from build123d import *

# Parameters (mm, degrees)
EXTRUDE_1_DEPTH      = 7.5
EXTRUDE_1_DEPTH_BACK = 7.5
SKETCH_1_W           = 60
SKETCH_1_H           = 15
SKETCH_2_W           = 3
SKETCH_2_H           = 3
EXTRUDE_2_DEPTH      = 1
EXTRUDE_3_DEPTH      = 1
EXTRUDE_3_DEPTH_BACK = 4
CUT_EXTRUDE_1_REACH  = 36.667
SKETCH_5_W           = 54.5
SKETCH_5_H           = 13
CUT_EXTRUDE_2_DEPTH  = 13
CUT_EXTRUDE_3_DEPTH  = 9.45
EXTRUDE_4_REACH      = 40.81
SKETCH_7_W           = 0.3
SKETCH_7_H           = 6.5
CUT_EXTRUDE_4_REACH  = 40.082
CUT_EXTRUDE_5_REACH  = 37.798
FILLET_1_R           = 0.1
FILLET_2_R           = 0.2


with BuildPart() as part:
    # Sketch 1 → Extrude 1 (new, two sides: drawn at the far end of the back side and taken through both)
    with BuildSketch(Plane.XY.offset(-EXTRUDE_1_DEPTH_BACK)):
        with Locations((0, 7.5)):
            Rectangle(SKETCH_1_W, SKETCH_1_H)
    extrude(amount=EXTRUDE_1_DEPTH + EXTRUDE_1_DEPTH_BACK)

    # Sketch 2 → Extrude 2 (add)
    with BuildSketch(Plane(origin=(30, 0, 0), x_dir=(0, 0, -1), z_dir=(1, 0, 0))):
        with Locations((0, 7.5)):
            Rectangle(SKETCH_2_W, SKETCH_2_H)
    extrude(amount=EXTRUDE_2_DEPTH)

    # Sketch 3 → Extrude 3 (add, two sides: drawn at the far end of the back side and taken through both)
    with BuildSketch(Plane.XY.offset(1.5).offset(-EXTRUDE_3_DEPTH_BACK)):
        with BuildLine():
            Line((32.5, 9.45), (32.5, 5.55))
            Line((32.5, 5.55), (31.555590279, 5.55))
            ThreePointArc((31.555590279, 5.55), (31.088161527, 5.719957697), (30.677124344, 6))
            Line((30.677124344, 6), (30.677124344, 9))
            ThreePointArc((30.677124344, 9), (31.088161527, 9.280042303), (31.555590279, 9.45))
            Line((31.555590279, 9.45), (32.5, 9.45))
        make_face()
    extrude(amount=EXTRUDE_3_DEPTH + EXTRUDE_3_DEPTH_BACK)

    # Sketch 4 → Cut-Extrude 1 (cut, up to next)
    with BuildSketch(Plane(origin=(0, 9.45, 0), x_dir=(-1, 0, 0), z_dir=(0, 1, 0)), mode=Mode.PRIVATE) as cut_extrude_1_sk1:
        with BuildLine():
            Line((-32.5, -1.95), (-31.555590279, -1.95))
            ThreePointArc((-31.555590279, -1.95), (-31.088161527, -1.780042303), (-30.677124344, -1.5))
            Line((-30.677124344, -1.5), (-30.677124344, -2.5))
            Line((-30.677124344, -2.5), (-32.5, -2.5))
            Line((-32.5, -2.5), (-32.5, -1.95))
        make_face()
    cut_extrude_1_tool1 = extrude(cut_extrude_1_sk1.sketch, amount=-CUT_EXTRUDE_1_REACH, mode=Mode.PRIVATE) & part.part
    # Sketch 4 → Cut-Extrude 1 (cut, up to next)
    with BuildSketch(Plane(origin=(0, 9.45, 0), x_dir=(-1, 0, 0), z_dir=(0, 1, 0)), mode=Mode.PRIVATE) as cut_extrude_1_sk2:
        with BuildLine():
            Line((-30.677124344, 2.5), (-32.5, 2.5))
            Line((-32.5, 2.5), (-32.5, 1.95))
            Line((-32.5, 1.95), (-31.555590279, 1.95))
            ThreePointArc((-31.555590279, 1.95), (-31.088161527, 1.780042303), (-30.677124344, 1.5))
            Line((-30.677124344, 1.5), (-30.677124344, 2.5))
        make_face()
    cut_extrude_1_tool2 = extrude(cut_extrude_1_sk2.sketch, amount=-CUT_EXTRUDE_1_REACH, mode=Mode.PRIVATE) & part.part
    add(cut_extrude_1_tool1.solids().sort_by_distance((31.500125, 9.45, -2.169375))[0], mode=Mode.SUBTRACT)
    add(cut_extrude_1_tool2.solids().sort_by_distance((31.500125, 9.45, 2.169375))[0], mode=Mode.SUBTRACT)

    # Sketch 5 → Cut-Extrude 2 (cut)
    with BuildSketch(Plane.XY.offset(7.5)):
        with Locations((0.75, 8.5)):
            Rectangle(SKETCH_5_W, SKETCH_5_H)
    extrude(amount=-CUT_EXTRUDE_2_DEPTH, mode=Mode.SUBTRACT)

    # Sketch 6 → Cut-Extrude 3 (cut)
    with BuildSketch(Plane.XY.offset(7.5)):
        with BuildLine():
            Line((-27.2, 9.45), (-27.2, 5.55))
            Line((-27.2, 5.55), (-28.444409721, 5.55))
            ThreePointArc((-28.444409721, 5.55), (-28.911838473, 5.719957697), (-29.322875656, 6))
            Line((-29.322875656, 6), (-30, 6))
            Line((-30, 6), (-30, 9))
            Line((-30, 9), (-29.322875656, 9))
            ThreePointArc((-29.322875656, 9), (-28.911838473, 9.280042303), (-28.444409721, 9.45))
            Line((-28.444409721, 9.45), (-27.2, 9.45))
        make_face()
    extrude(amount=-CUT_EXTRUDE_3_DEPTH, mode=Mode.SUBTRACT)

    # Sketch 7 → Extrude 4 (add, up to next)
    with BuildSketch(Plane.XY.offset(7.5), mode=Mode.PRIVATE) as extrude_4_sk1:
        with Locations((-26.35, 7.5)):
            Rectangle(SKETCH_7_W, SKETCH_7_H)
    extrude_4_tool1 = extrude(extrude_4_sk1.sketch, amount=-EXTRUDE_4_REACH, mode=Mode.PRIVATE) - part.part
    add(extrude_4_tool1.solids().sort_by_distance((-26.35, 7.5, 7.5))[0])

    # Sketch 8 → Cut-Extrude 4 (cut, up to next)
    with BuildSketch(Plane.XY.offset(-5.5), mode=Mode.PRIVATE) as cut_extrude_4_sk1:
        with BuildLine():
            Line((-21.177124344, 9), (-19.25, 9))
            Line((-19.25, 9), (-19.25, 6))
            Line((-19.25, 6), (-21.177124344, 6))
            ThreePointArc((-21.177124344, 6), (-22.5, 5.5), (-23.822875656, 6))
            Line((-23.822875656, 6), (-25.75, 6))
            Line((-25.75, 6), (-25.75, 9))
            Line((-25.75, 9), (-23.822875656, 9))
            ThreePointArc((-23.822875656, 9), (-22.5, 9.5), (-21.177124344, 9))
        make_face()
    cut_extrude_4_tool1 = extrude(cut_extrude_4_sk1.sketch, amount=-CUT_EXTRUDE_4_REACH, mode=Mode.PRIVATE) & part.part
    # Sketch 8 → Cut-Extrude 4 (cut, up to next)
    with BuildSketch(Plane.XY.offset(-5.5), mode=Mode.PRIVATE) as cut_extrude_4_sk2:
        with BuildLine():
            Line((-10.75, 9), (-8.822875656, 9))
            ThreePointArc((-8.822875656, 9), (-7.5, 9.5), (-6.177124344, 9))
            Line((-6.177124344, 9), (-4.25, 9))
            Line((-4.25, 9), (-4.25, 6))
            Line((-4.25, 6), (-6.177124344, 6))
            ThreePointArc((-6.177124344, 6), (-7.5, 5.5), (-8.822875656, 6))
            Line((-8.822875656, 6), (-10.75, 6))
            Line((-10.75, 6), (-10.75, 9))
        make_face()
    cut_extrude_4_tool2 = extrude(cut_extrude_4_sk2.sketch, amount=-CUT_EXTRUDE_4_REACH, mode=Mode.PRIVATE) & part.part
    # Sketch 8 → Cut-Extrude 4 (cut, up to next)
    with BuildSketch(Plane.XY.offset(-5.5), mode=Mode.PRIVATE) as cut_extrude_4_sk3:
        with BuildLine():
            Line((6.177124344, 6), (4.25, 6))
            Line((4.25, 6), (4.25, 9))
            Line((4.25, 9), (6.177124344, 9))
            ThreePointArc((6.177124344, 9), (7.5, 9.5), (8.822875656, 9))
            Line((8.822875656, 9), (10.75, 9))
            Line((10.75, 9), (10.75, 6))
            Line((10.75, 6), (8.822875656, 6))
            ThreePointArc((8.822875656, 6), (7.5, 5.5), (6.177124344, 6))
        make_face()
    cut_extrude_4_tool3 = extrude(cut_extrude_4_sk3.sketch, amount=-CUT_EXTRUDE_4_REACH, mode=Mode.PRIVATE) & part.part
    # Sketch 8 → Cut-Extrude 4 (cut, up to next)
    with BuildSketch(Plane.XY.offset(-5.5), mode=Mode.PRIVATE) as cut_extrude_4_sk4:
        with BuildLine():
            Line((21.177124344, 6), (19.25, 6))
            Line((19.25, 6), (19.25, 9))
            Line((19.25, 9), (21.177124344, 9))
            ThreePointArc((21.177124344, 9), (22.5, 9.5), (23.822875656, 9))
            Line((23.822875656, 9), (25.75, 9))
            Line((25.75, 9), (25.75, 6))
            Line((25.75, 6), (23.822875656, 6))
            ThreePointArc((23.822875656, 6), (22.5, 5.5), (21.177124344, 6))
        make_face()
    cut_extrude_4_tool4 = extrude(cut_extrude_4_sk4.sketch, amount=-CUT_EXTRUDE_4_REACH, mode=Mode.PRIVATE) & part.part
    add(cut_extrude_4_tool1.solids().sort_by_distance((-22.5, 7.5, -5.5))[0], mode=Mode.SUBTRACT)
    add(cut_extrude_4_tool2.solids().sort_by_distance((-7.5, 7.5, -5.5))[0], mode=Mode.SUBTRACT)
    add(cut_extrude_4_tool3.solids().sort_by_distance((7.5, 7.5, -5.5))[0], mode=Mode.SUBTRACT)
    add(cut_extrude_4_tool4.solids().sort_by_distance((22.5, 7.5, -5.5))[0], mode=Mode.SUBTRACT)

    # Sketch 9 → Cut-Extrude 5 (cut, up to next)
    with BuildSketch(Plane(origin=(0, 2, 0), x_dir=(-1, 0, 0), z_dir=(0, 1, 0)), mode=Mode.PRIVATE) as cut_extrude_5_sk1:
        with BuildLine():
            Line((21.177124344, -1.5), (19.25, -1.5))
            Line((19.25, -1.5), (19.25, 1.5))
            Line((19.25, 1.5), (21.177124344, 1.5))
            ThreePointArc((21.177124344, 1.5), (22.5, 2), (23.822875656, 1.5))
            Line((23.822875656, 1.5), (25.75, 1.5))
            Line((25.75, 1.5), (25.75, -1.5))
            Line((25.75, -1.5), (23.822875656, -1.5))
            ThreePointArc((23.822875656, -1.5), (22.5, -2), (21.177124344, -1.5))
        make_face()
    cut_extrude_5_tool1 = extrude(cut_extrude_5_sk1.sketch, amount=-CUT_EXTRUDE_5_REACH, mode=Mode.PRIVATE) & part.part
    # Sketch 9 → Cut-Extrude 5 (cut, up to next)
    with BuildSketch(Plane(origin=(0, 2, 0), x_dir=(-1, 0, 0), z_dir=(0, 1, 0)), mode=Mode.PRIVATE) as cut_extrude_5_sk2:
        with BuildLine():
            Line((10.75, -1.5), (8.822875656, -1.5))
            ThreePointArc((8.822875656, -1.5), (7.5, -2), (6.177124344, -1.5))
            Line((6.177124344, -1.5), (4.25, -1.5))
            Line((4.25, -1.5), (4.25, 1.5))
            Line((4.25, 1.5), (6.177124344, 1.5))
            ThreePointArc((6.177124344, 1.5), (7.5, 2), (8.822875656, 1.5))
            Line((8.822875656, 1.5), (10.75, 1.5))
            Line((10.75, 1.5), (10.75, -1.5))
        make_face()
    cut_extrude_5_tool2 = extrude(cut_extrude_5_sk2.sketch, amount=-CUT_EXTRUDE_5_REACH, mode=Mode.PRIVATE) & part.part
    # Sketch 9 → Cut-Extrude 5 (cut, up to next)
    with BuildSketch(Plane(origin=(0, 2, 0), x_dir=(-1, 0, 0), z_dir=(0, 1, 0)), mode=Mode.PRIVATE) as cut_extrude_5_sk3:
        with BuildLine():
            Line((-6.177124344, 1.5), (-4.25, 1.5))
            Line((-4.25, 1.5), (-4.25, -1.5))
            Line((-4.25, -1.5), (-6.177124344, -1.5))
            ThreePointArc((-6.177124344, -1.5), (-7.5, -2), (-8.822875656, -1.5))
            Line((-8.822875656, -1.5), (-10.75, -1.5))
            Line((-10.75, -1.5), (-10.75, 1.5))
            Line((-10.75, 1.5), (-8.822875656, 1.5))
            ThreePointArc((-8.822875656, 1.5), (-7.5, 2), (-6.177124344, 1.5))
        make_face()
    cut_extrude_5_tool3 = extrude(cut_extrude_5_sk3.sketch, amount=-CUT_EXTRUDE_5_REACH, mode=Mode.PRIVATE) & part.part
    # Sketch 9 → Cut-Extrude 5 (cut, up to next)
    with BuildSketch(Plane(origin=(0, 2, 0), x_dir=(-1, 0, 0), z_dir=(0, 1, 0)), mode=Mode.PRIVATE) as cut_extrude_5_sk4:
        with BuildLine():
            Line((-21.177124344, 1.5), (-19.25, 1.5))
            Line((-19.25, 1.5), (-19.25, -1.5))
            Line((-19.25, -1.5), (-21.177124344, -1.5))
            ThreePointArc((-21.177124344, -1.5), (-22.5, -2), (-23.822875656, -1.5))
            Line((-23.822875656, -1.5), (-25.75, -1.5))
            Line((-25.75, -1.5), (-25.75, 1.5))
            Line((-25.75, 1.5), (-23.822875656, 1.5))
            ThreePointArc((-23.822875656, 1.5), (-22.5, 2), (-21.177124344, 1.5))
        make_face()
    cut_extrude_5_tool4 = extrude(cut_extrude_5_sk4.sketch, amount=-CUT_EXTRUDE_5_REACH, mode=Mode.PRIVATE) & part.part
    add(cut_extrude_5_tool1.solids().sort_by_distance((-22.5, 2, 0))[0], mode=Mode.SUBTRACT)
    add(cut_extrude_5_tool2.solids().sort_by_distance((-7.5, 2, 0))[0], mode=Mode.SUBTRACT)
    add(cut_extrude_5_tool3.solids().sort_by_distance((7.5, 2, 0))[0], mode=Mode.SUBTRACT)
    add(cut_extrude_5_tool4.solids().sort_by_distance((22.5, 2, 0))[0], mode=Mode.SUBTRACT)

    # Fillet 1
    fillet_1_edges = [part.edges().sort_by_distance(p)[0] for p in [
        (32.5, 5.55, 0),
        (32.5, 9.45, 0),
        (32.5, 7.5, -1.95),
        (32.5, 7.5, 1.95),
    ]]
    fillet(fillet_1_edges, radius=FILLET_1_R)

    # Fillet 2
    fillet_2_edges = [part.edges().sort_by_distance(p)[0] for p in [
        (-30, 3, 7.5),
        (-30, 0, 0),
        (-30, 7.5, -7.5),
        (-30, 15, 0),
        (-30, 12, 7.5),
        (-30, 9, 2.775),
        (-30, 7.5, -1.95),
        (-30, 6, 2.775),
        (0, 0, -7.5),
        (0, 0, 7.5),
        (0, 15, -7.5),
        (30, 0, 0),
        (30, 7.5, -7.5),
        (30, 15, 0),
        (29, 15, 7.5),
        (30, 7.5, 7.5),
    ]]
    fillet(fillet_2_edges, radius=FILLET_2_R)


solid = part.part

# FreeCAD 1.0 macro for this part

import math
import FreeCAD as App
import Part
import Sketcher
Q = App.Units.Quantity


def edges_at(feature, points):
    """Names of the edges that pass closest to the given points."""
    edges = feature.Shape.Edges
    near = lambda p: min(range(len(edges)), key=lambda i: edges[i].distToShape(Part.Vertex(*p))[0])
    return sorted({f"Edge{near(p) + 1}" for p in points})


def add_polygon(sketch, points):
    """Adds a closed chain of lines whose ends are joined by coincident constraints."""
    first, n = sketch.GeometryCount, len(points)
    for a, b in zip(points, points[1:] + points[:1]):
        sketch.addGeometry(Part.LineSegment(App.Vector(*a, 0), App.Vector(*b, 0)), False)
    for i in range(n):
        sketch.addConstraint(Sketcher.Constraint("Coincident", first + i, 2, first + (i + 1) % n, 1))

doc = App.newDocument("Part")
body = doc.addObject("PartDesign::Body", "Body")

# Sketch on XY plane
sketch1 = doc.addObject("Sketcher::SketchObject", "Sketch")
body.addObject(sketch1)
sketch1.AttachmentSupport = (doc.XY_Plane, [""])
sketch1.MapMode = "FlatFace"
add_polygon(sketch1, [(-30, 15), (-30, 0), (30, 0), (30, 15)])  # lines 0-3
sketch1.addConstraint(Sketcher.Constraint("Vertical", 0))
sketch1.addConstraint(Sketcher.Constraint("Horizontal", 1))
sketch1.addConstraint(Sketcher.Constraint("Vertical", 2))
sketch1.addConstraint(Sketcher.Constraint("Horizontal", 3))
sketch1.addConstraint(Sketcher.Constraint("Symmetric", 0, 2, 1, 2, -1, 1))
sketch1.addConstraint(Sketcher.Constraint("DistanceX", 1, 1, 1, 2, Q("60 mm")))
sketch1.addConstraint(Sketcher.Constraint("DistanceY", 0, 2, 0, 1, Q("15 mm")))
pad1 = doc.addObject("PartDesign::Pad", "Pad")
body.addObject(pad1)
pad1.Profile = sketch1
pad1.Type = "TwoLengths"
pad1.Length = 7.5
pad1.Length2 = 7.5

# Sketch on YZ plane
sketch2 = doc.addObject("Sketcher::SketchObject", "Sketch001")
body.addObject(sketch2)
sketch2.AttachmentSupport = (doc.YZ_Plane, [""])
sketch2.MapMode = "FlatFace"
sketch2.AttachmentOffset = App.Placement(App.Vector(0, 0, 30), App.Rotation())
add_polygon(sketch2, [(9, 1.5), (6, 1.5), (6, -1.5), (9, -1.5)])  # lines 0-3
sketch2.addConstraint(Sketcher.Constraint("Horizontal", 0))
sketch2.addConstraint(Sketcher.Constraint("Vertical", 1))
sketch2.addConstraint(Sketcher.Constraint("Horizontal", 2))
sketch2.addConstraint(Sketcher.Constraint("Vertical", 3))
sketch2.addConstraint(Sketcher.Constraint("Equal", 2, 1))
sketch2.addConstraint(Sketcher.Constraint("DistanceX", 0, 2, 0, 1, Q("3 mm")))
sketch2.addConstraint(Sketcher.Constraint("DistanceX", -1, 1, 0, 2, Q("6 mm")))
sketch2.addConstraint(Sketcher.Constraint("DistanceY", -1, 1, 0, 2, Q("1.5 mm")))
pad2 = doc.addObject("PartDesign::Pad", "Pad001")
body.addObject(pad2)
pad2.Profile = sketch2
pad2.Length = 1

# Sketch on XY plane
sketch3 = doc.addObject("Sketcher::SketchObject", "Sketch002")
body.addObject(sketch3)
sketch3.AttachmentSupport = (doc.XY_Plane, [""])
sketch3.MapMode = "FlatFace"
sketch3.AttachmentOffset = App.Placement(App.Vector(0, 0, 1.5), App.Rotation())
sketch3.addGeometry(Part.LineSegment(App.Vector(32.5, 5.5, 0), App.Vector(32.5, 9.4, 0)), False)
sketch3.addGeometry(Part.LineSegment(App.Vector(32.5, 9.4, 0), App.Vector(31.6, 9.4, 0)), False)
sketch3.addGeometry(Part.ArcOfCircle(Part.Circle(App.Vector(32, 7.5, 0), App.Vector(0, 0, 1), 2), math.radians(103), math.radians(131)), False)
sketch3.addGeometry(Part.LineSegment(App.Vector(30.7, 9, 0), App.Vector(30.7, 6, 0)), False)
sketch3.addGeometry(Part.ArcOfCircle(Part.Circle(App.Vector(32, 7.5, 0), App.Vector(0, 0, 1), 2), math.radians(-131), math.radians(-103)), False)
sketch3.addGeometry(Part.LineSegment(App.Vector(31.6, 5.5, 0), App.Vector(32.5, 5.5, 0)), False)
sketch3.addConstraint(Sketcher.Constraint("Coincident", 0, 2, 1, 1))
sketch3.addConstraint(Sketcher.Constraint("Coincident", 1, 2, 2, 1))
sketch3.addConstraint(Sketcher.Constraint("Coincident", 2, 2, 3, 1))
sketch3.addConstraint(Sketcher.Constraint("Coincident", 3, 2, 4, 1))
sketch3.addConstraint(Sketcher.Constraint("Coincident", 4, 2, 5, 1))
sketch3.addConstraint(Sketcher.Constraint("Coincident", 5, 2, 0, 1))
sketch3.addConstraint(Sketcher.Constraint("Vertical", 0))
sketch3.addConstraint(Sketcher.Constraint("Horizontal", 1))
sketch3.addConstraint(Sketcher.Constraint("Vertical", 3))
sketch3.addConstraint(Sketcher.Constraint("Horizontal", 5))
sketch3.addConstraint(Sketcher.Constraint("Coincident", 4, 3, 2, 3))
sketch3.addConstraint(Sketcher.Constraint("Equal", 2, 4))
sketch3.addConstraint(Sketcher.Constraint("Vertical", 1, 2, 4, 2))
sketch3.addConstraint(Sketcher.Constraint("Radius", 2, Q("2 mm")))
sketch3.addConstraint(Sketcher.Constraint("DistanceY", 3, 2, 3, 1, Q("3 mm")))
sketch3.addConstraint(Sketcher.Constraint("DistanceY", 0, 1, 0, 2, Q("3.9 mm")))
sketch3.addConstraint(Sketcher.Constraint("DistanceX", -1, 1, 2, 3, Q("32 mm")))
sketch3.addConstraint(Sketcher.Constraint("DistanceY", -1, 1, 2, 2, Q("9 mm")))
sketch3.addConstraint(Sketcher.Constraint("DistanceX", -1, 1, 0, 2, Q("32.5 mm")))
pad3 = doc.addObject("PartDesign::Pad", "Pad002")
body.addObject(pad3)
pad3.Profile = sketch3
pad3.Type = "TwoLengths"
pad3.Length = 1
pad3.Length2 = 4

# Sketch on XZ plane
sketch4 = doc.addObject("Sketcher::SketchObject", "Sketch003")
body.addObject(sketch4)
sketch4.AttachmentSupport = (doc.XZ_Plane, [""])
sketch4.MapMode = "FlatFace"
sketch4.AttachmentOffset = App.Placement(App.Vector(0, 0, -9.45), App.Rotation())
sketch4.addGeometry(Part.LineSegment(App.Vector(31.6, -1.9, 0), App.Vector(32.5, -1.9, 0)), False)
sketch4.addGeometry(Part.LineSegment(App.Vector(32.5, -1.9, 0), App.Vector(32.5, -2.5, 0)), False)
sketch4.addGeometry(Part.LineSegment(App.Vector(32.5, -2.5, 0), App.Vector(30.7, -2.5, 0)), False)
sketch4.addGeometry(Part.LineSegment(App.Vector(30.7, -2.5, 0), App.Vector(30.7, -1.5, 0)), False)
sketch4.addGeometry(Part.ArcOfCircle(Part.Circle(App.Vector(32, 0, 0), App.Vector(0, 0, 1), 2), math.radians(-131), math.radians(-103)), False)
sketch4.addConstraint(Sketcher.Constraint("Coincident", 0, 2, 1, 1))
sketch4.addConstraint(Sketcher.Constraint("Coincident", 1, 2, 2, 1))
sketch4.addConstraint(Sketcher.Constraint("Coincident", 2, 2, 3, 1))
sketch4.addConstraint(Sketcher.Constraint("Coincident", 3, 2, 4, 1))
sketch4.addConstraint(Sketcher.Constraint("Coincident", 4, 2, 0, 1))
sketch4.addConstraint(Sketcher.Constraint("Horizontal", 0))
sketch4.addConstraint(Sketcher.Constraint("Vertical", 1))
sketch4.addConstraint(Sketcher.Constraint("Horizontal", 2))
sketch4.addConstraint(Sketcher.Constraint("Vertical", 3))
sketch4.addConstraint(Sketcher.Constraint("PointOnObject", 4, 3, -1))
sketch4.addConstraint(Sketcher.Constraint("Radius", 4, Q("2 mm")))
sketch4.addConstraint(Sketcher.Constraint("DistanceY", 3, 1, 3, 2, Q("1 mm")))
sketch4.addConstraint(Sketcher.Constraint("DistanceX", -1, 1, 4, 3, Q("32 mm")))
sketch4.addConstraint(Sketcher.Constraint("DistanceY", 1, 2, 1, 1, Q("0.55 mm")))
sketch4.addConstraint(Sketcher.Constraint("DistanceX", -1, 1, 0, 2, Q("32.5 mm")))
sketch4.addConstraint(Sketcher.Constraint("DistanceY", 1, 2, -1, 1, Q("2.5 mm")))
pocket1 = doc.addObject("PartDesign::Pocket", "Pocket")
body.addObject(pocket1)
pocket1.Profile = sketch4
pocket1.Length = 3.9
pocket1.Reversed = True

# Sketch on XZ plane
sketch5 = doc.addObject("Sketcher::SketchObject", "Sketch004")
body.addObject(sketch5)
sketch5.AttachmentSupport = (doc.XZ_Plane, [""])
sketch5.MapMode = "FlatFace"
sketch5.AttachmentOffset = App.Placement(App.Vector(0, 0, -9.45), App.Rotation())
sketch5.addGeometry(Part.LineSegment(App.Vector(30.7, 2.5, 0), App.Vector(32.5, 2.5, 0)), False)
sketch5.addGeometry(Part.LineSegment(App.Vector(32.5, 2.5, 0), App.Vector(32.5, 1.9, 0)), False)
sketch5.addGeometry(Part.LineSegment(App.Vector(32.5, 1.9, 0), App.Vector(31.6, 1.9, 0)), False)
sketch5.addGeometry(Part.ArcOfCircle(Part.Circle(App.Vector(32, 0, 0), App.Vector(0, 0, 1), 2), math.radians(103), math.radians(131)), False)
sketch5.addGeometry(Part.LineSegment(App.Vector(30.7, 1.5, 0), App.Vector(30.7, 2.5, 0)), False)
sketch5.addConstraint(Sketcher.Constraint("Coincident", 0, 2, 1, 1))
sketch5.addConstraint(Sketcher.Constraint("Coincident", 1, 2, 2, 1))
sketch5.addConstraint(Sketcher.Constraint("Coincident", 2, 2, 3, 1))
sketch5.addConstraint(Sketcher.Constraint("Coincident", 3, 2, 4, 1))
sketch5.addConstraint(Sketcher.Constraint("Coincident", 4, 2, 0, 1))
sketch5.addConstraint(Sketcher.Constraint("Horizontal", 0))
sketch5.addConstraint(Sketcher.Constraint("Vertical", 1))
sketch5.addConstraint(Sketcher.Constraint("Horizontal", 2))
sketch5.addConstraint(Sketcher.Constraint("Vertical", 4))
sketch5.addConstraint(Sketcher.Constraint("PointOnObject", 3, 3, -1))
sketch5.addConstraint(Sketcher.Constraint("Radius", 3, Q("2 mm")))
sketch5.addConstraint(Sketcher.Constraint("DistanceY", 4, 1, 4, 2, Q("1 mm")))
sketch5.addConstraint(Sketcher.Constraint("DistanceX", -1, 1, 3, 3, Q("32 mm")))
sketch5.addConstraint(Sketcher.Constraint("DistanceY", 1, 2, 1, 1, Q("0.55 mm")))
sketch5.addConstraint(Sketcher.Constraint("DistanceX", -1, 1, 0, 2, Q("32.5 mm")))
sketch5.addConstraint(Sketcher.Constraint("DistanceY", -1, 1, 0, 2, Q("2.5 mm")))
pocket2 = doc.addObject("PartDesign::Pocket", "Pocket001")
body.addObject(pocket2)
pocket2.Profile = sketch5
pocket2.Length = 3.9
pocket2.Reversed = True

# Sketch on XY plane
sketch6 = doc.addObject("Sketcher::SketchObject", "Sketch005")
body.addObject(sketch6)
sketch6.AttachmentSupport = (doc.XY_Plane, [""])
sketch6.MapMode = "FlatFace"
sketch6.AttachmentOffset = App.Placement(App.Vector(0, 0, 7.5), App.Rotation())
add_polygon(sketch6, [(-26, 15), (-26, 2), (28, 2), (28, 15)])  # lines 0-3
sketch6.addConstraint(Sketcher.Constraint("Vertical", 0))
sketch6.addConstraint(Sketcher.Constraint("Horizontal", 1))
sketch6.addConstraint(Sketcher.Constraint("Vertical", 2))
sketch6.addConstraint(Sketcher.Constraint("Horizontal", 3))
sketch6.addConstraint(Sketcher.Constraint("DistanceY", 0, 2, 0, 1, Q("13 mm")))
sketch6.addConstraint(Sketcher.Constraint("DistanceX", 1, 1, 1, 2, Q("54.5 mm")))
sketch6.addConstraint(Sketcher.Constraint("DistanceY", -1, 1, 0, 2, Q("2 mm")))
sketch6.addConstraint(Sketcher.Constraint("DistanceX", -1, 1, 1, 2, Q("28 mm")))
pocket3 = doc.addObject("PartDesign::Pocket", "Pocket002")
body.addObject(pocket3)
pocket3.Profile = sketch6
pocket3.Length = 13

# Sketch on XY plane
sketch7 = doc.addObject("Sketcher::SketchObject", "Sketch006")
body.addObject(sketch7)
sketch7.AttachmentSupport = (doc.XY_Plane, [""])
sketch7.MapMode = "FlatFace"
sketch7.AttachmentOffset = App.Placement(App.Vector(0, 0, 7.5), App.Rotation())
sketch7.addGeometry(Part.LineSegment(App.Vector(-27.2, 5.5, 0), App.Vector(-27.2, 9.4, 0)), False)
sketch7.addGeometry(Part.LineSegment(App.Vector(-27.2, 9.4, 0), App.Vector(-28.4, 9.4, 0)), False)
sketch7.addGeometry(Part.ArcOfCircle(Part.Circle(App.Vector(-28, 7.5, 0), App.Vector(0, 0, 1), 2), math.radians(103), math.radians(131)), False)
sketch7.addGeometry(Part.LineSegment(App.Vector(-29.3, 9, 0), App.Vector(-30, 9, 0)), False)
sketch7.addGeometry(Part.LineSegment(App.Vector(-30, 9, 0), App.Vector(-30, 6, 0)), False)
sketch7.addGeometry(Part.LineSegment(App.Vector(-30, 6, 0), App.Vector(-29.3, 6, 0)), False)
sketch7.addGeometry(Part.ArcOfCircle(Part.Circle(App.Vector(-28, 7.5, 0), App.Vector(0, 0, 1), 2), math.radians(-131), math.radians(-103)), False)
sketch7.addGeometry(Part.LineSegment(App.Vector(-28.4, 5.5, 0), App.Vector(-27.2, 5.5, 0)), False)
sketch7.addConstraint(Sketcher.Constraint("Coincident", 0, 2, 1, 1))
sketch7.addConstraint(Sketcher.Constraint("Coincident", 1, 2, 2, 1))
sketch7.addConstraint(Sketcher.Constraint("Coincident", 2, 2, 3, 1))
sketch7.addConstraint(Sketcher.Constraint("Coincident", 3, 2, 4, 1))
sketch7.addConstraint(Sketcher.Constraint("Coincident", 4, 2, 5, 1))
sketch7.addConstraint(Sketcher.Constraint("Coincident", 5, 2, 6, 1))
sketch7.addConstraint(Sketcher.Constraint("Coincident", 6, 2, 7, 1))
sketch7.addConstraint(Sketcher.Constraint("Coincident", 7, 2, 0, 1))
sketch7.addConstraint(Sketcher.Constraint("Vertical", 0))
sketch7.addConstraint(Sketcher.Constraint("Horizontal", 1))
sketch7.addConstraint(Sketcher.Constraint("Horizontal", 3))
sketch7.addConstraint(Sketcher.Constraint("Vertical", 4))
sketch7.addConstraint(Sketcher.Constraint("Horizontal", 5))
sketch7.addConstraint(Sketcher.Constraint("Horizontal", 7))
sketch7.addConstraint(Sketcher.Constraint("Coincident", 6, 3, 2, 3))
sketch7.addConstraint(Sketcher.Constraint("Equal", 2, 6))
sketch7.addConstraint(Sketcher.Constraint("Vertical", 2, 2, 5, 2))
sketch7.addConstraint(Sketcher.Constraint("Vertical", 1, 2, 6, 2))
sketch7.addConstraint(Sketcher.Constraint("Radius", 2, Q("2 mm")))
sketch7.addConstraint(Sketcher.Constraint("DistanceY", 4, 2, 4, 1, Q("3 mm")))
sketch7.addConstraint(Sketcher.Constraint("DistanceY", 0, 1, 0, 2, Q("3.9 mm")))
sketch7.addConstraint(Sketcher.Constraint("DistanceX", 2, 3, -1, 1, Q("28 mm")))
sketch7.addConstraint(Sketcher.Constraint("DistanceY", -1, 1, 2, 2, Q("9 mm")))
sketch7.addConstraint(Sketcher.Constraint("DistanceX", 3, 2, -1, 1, Q("30 mm")))
sketch7.addConstraint(Sketcher.Constraint("DistanceX", 0, 2, -1, 1, Q("27.2 mm")))
pocket4 = doc.addObject("PartDesign::Pocket", "Pocket003")
body.addObject(pocket4)
pocket4.Profile = sketch7
pocket4.Length = 9.45

# Sketch on XY plane
sketch8 = doc.addObject("Sketcher::SketchObject", "Sketch007")
body.addObject(sketch8)
sketch8.AttachmentSupport = (doc.XY_Plane, [""])
sketch8.MapMode = "FlatFace"
sketch8.AttachmentOffset = App.Placement(App.Vector(0, 0, 7.5), App.Rotation())
add_polygon(sketch8, [(-26.5, 10.75), (-26.5, 4.25), (-26.2, 4.25), (-26.2, 10.75)])  # lines 0-3
sketch8.addConstraint(Sketcher.Constraint("Vertical", 0))
sketch8.addConstraint(Sketcher.Constraint("Horizontal", 1))
sketch8.addConstraint(Sketcher.Constraint("Vertical", 2))
sketch8.addConstraint(Sketcher.Constraint("Horizontal", 3))
sketch8.addConstraint(Sketcher.Constraint("DistanceX", 1, 1, 1, 2, Q("0.3 mm")))
sketch8.addConstraint(Sketcher.Constraint("DistanceY", 0, 2, 0, 1, Q("6.5 mm")))
sketch8.addConstraint(Sketcher.Constraint("DistanceX", 0, 2, -1, 1, Q("26.5 mm")))
sketch8.addConstraint(Sketcher.Constraint("DistanceY", -1, 1, 0, 2, Q("4.25 mm")))
pad4 = doc.addObject("PartDesign::Pad", "Pad003")
body.addObject(pad4)
pad4.Profile = sketch8
pad4.Type = "UpToFirst"
pad4.Reversed = True

# Sketch on XY plane
sketch9 = doc.addObject("Sketcher::SketchObject", "Sketch008")
body.addObject(sketch9)
sketch9.AttachmentSupport = (doc.XY_Plane, [""])
sketch9.MapMode = "FlatFace"
sketch9.AttachmentOffset = App.Placement(App.Vector(0, 0, -5.5), App.Rotation())
sketch9.addGeometry(Part.LineSegment(App.Vector(-19.2, 9, 0), App.Vector(-21.2, 9, 0)), False)
sketch9.addGeometry(Part.ArcOfCircle(Part.Circle(App.Vector(-22.5, 7.5, 0), App.Vector(0, 0, 1), 2), math.radians(49), math.radians(131)), False)
sketch9.addGeometry(Part.LineSegment(App.Vector(-23.8, 9, 0), App.Vector(-25.8, 9, 0)), False)
sketch9.addGeometry(Part.LineSegment(App.Vector(-25.8, 9, 0), App.Vector(-25.8, 6, 0)), False)
sketch9.addGeometry(Part.LineSegment(App.Vector(-25.8, 6, 0), App.Vector(-23.8, 6, 0)), False)
sketch9.addGeometry(Part.ArcOfCircle(Part.Circle(App.Vector(-22.5, 7.5, 0), App.Vector(0, 0, 1), 2), math.radians(-131), math.radians(-49)), False)
sketch9.addGeometry(Part.LineSegment(App.Vector(-21.2, 6, 0), App.Vector(-19.2, 6, 0)), False)
sketch9.addGeometry(Part.LineSegment(App.Vector(-19.2, 6, 0), App.Vector(-19.2, 9, 0)), False)
sketch9.addConstraint(Sketcher.Constraint("Coincident", 0, 2, 1, 1))
sketch9.addConstraint(Sketcher.Constraint("Coincident", 1, 2, 2, 1))
sketch9.addConstraint(Sketcher.Constraint("Coincident", 2, 2, 3, 1))
sketch9.addConstraint(Sketcher.Constraint("Coincident", 3, 2, 4, 1))
sketch9.addConstraint(Sketcher.Constraint("Coincident", 4, 2, 5, 1))
sketch9.addConstraint(Sketcher.Constraint("Coincident", 5, 2, 6, 1))
sketch9.addConstraint(Sketcher.Constraint("Coincident", 6, 2, 7, 1))
sketch9.addConstraint(Sketcher.Constraint("Coincident", 7, 2, 0, 1))
sketch9.addConstraint(Sketcher.Constraint("Horizontal", 0))
sketch9.addConstraint(Sketcher.Constraint("Horizontal", 2))
sketch9.addConstraint(Sketcher.Constraint("Vertical", 3))
sketch9.addConstraint(Sketcher.Constraint("Horizontal", 4))
sketch9.addConstraint(Sketcher.Constraint("Horizontal", 6))
sketch9.addConstraint(Sketcher.Constraint("Vertical", 7))
sketch9.addConstraint(Sketcher.Constraint("Coincident", 5, 3, 1, 3))
sketch9.addConstraint(Sketcher.Constraint("Equal", 1, 5))
sketch9.addConstraint(Sketcher.Constraint("Horizontal", 0, 2, 1, 2))
sketch9.addConstraint(Sketcher.Constraint("Horizontal", 4, 2, 5, 2))
sketch9.addConstraint(Sketcher.Constraint("Vertical", 1, 2, 4, 2))
sketch9.addConstraint(Sketcher.Constraint("Equal", 0, 2))
sketch9.addConstraint(Sketcher.Constraint("Radius", 1, Q("2 mm")))
sketch9.addConstraint(Sketcher.Constraint("DistanceY", 3, 2, 3, 1, Q("3 mm")))
sketch9.addConstraint(Sketcher.Constraint("DistanceY", -1, 1, 0, 2, Q("9 mm")))
sketch9.addConstraint(Sketcher.Constraint("DistanceX", 1, 3, -1, 1, Q("22.5 mm")))
sketch9.addConstraint(Sketcher.Constraint("DistanceX", 2, 2, -1, 1, Q("25.75 mm")))
pocket5 = doc.addObject("PartDesign::Pocket", "Pocket004")
body.addObject(pocket5)
pocket5.Profile = sketch9
pocket5.Type = "UpToFirst"

# Sketch on XY plane
sketch10 = doc.addObject("Sketcher::SketchObject", "Sketch009")
body.addObject(sketch10)
sketch10.AttachmentSupport = (doc.XY_Plane, [""])
sketch10.MapMode = "FlatFace"
sketch10.AttachmentOffset = App.Placement(App.Vector(0, 0, -5.5), App.Rotation())
sketch10.addGeometry(Part.LineSegment(App.Vector(-8.8, 9, 0), App.Vector(-10.8, 9, 0)), False)
sketch10.addGeometry(Part.LineSegment(App.Vector(-10.8, 9, 0), App.Vector(-10.8, 6, 0)), False)
sketch10.addGeometry(Part.LineSegment(App.Vector(-10.8, 6, 0), App.Vector(-8.8, 6, 0)), False)
sketch10.addGeometry(Part.ArcOfCircle(Part.Circle(App.Vector(-7.5, 7.5, 0), App.Vector(0, 0, 1), 2), math.radians(-131), math.radians(-49)), False)
sketch10.addGeometry(Part.LineSegment(App.Vector(-6.2, 6, 0), App.Vector(-4.2, 6, 0)), False)
sketch10.addGeometry(Part.LineSegment(App.Vector(-4.2, 6, 0), App.Vector(-4.2, 9, 0)), False)
sketch10.addGeometry(Part.LineSegment(App.Vector(-4.2, 9, 0), App.Vector(-6.2, 9, 0)), False)
sketch10.addGeometry(Part.ArcOfCircle(Part.Circle(App.Vector(-7.5, 7.5, 0), App.Vector(0, 0, 1), 2), math.radians(49), math.radians(131)), False)
sketch10.addConstraint(Sketcher.Constraint("Coincident", 0, 2, 1, 1))
sketch10.addConstraint(Sketcher.Constraint("Coincident", 1, 2, 2, 1))
sketch10.addConstraint(Sketcher.Constraint("Coincident", 2, 2, 3, 1))
sketch10.addConstraint(Sketcher.Constraint("Coincident", 3, 2, 4, 1))
sketch10.addConstraint(Sketcher.Constraint("Coincident", 4, 2, 5, 1))
sketch10.addConstraint(Sketcher.Constraint("Coincident", 5, 2, 6, 1))
sketch10.addConstraint(Sketcher.Constraint("Coincident", 6, 2, 7, 1))
sketch10.addConstraint(Sketcher.Constraint("Coincident", 7, 2, 0, 1))
sketch10.addConstraint(Sketcher.Constraint("Horizontal", 0))
sketch10.addConstraint(Sketcher.Constraint("Vertical", 1))
sketch10.addConstraint(Sketcher.Constraint("Horizontal", 2))
sketch10.addConstraint(Sketcher.Constraint("Horizontal", 4))
sketch10.addConstraint(Sketcher.Constraint("Vertical", 5))
sketch10.addConstraint(Sketcher.Constraint("Horizontal", 6))
sketch10.addConstraint(Sketcher.Constraint("Coincident", 7, 3, 3, 3))
sketch10.addConstraint(Sketcher.Constraint("Equal", 3, 7))
sketch10.addConstraint(Sketcher.Constraint("Horizontal", 2, 2, 3, 2))
sketch10.addConstraint(Sketcher.Constraint("Horizontal", 0, 2, 5, 2))
sketch10.addConstraint(Sketcher.Constraint("Vertical", 3, 2, 6, 2))
sketch10.addConstraint(Sketcher.Constraint("Equal", 2, 4))
sketch10.addConstraint(Sketcher.Constraint("Radius", 3, Q("2 mm")))
sketch10.addConstraint(Sketcher.Constraint("DistanceY", 1, 2, 1, 1, Q("3 mm")))
sketch10.addConstraint(Sketcher.Constraint("DistanceY", -1, 1, 0, 2, Q("9 mm")))
sketch10.addConstraint(Sketcher.Constraint("DistanceX", 3, 3, -1, 1, Q("7.5 mm")))
sketch10.addConstraint(Sketcher.Constraint("DistanceX", 1, 2, 4, 2, Q("6.5 mm")))
pocket6 = doc.addObject("PartDesign::Pocket", "Pocket005")
body.addObject(pocket6)
pocket6.Profile = sketch10
pocket6.Type = "UpToFirst"

# Sketch on XY plane
sketch11 = doc.addObject("Sketcher::SketchObject", "Sketch010")
body.addObject(sketch11)
sketch11.AttachmentSupport = (doc.XY_Plane, [""])
sketch11.MapMode = "FlatFace"
sketch11.AttachmentOffset = App.Placement(App.Vector(0, 0, -5.5), App.Rotation())
sketch11.addGeometry(Part.LineSegment(App.Vector(4.2, 6, 0), App.Vector(6.2, 6, 0)), False)
sketch11.addGeometry(Part.ArcOfCircle(Part.Circle(App.Vector(7.5, 7.5, 0), App.Vector(0, 0, 1), 2), math.radians(-131), math.radians(-49)), False)
sketch11.addGeometry(Part.LineSegment(App.Vector(8.8, 6, 0), App.Vector(10.8, 6, 0)), False)
sketch11.addGeometry(Part.LineSegment(App.Vector(10.8, 6, 0), App.Vector(10.8, 9, 0)), False)
sketch11.addGeometry(Part.LineSegment(App.Vector(10.8, 9, 0), App.Vector(8.8, 9, 0)), False)
sketch11.addGeometry(Part.ArcOfCircle(Part.Circle(App.Vector(7.5, 7.5, 0), App.Vector(0, 0, 1), 2), math.radians(49), math.radians(131)), False)
sketch11.addGeometry(Part.LineSegment(App.Vector(6.2, 9, 0), App.Vector(4.2, 9, 0)), False)
sketch11.addGeometry(Part.LineSegment(App.Vector(4.2, 9, 0), App.Vector(4.2, 6, 0)), False)
sketch11.addConstraint(Sketcher.Constraint("Coincident", 0, 2, 1, 1))
sketch11.addConstraint(Sketcher.Constraint("Coincident", 1, 2, 2, 1))
sketch11.addConstraint(Sketcher.Constraint("Coincident", 2, 2, 3, 1))
sketch11.addConstraint(Sketcher.Constraint("Coincident", 3, 2, 4, 1))
sketch11.addConstraint(Sketcher.Constraint("Coincident", 4, 2, 5, 1))
sketch11.addConstraint(Sketcher.Constraint("Coincident", 5, 2, 6, 1))
sketch11.addConstraint(Sketcher.Constraint("Coincident", 6, 2, 7, 1))
sketch11.addConstraint(Sketcher.Constraint("Coincident", 7, 2, 0, 1))
sketch11.addConstraint(Sketcher.Constraint("Horizontal", 0))
sketch11.addConstraint(Sketcher.Constraint("Horizontal", 2))
sketch11.addConstraint(Sketcher.Constraint("Vertical", 3))
sketch11.addConstraint(Sketcher.Constraint("Horizontal", 4))
sketch11.addConstraint(Sketcher.Constraint("Horizontal", 6))
sketch11.addConstraint(Sketcher.Constraint("Vertical", 7))
sketch11.addConstraint(Sketcher.Constraint("Coincident", 5, 3, 1, 3))
sketch11.addConstraint(Sketcher.Constraint("Equal", 1, 5))
sketch11.addConstraint(Sketcher.Constraint("Horizontal", 0, 2, 1, 2))
sketch11.addConstraint(Sketcher.Constraint("Horizontal", 4, 2, 5, 2))
sketch11.addConstraint(Sketcher.Constraint("Vertical", 1, 2, 4, 2))
sketch11.addConstraint(Sketcher.Constraint("Equal", 0, 2))
sketch11.addConstraint(Sketcher.Constraint("Radius", 1, Q("2 mm")))
sketch11.addConstraint(Sketcher.Constraint("DistanceY", 3, 1, 3, 2, Q("3 mm")))
sketch11.addConstraint(Sketcher.Constraint("DistanceY", -1, 1, 0, 2, Q("6 mm")))
sketch11.addConstraint(Sketcher.Constraint("DistanceX", -1, 1, 1, 3, Q("7.5 mm")))
sketch11.addConstraint(Sketcher.Constraint("DistanceX", -1, 1, 2, 2, Q("10.75 mm")))
pocket7 = doc.addObject("PartDesign::Pocket", "Pocket006")
body.addObject(pocket7)
pocket7.Profile = sketch11
pocket7.Type = "UpToFirst"

# Sketch on XY plane
sketch12 = doc.addObject("Sketcher::SketchObject", "Sketch011")
body.addObject(sketch12)
sketch12.AttachmentSupport = (doc.XY_Plane, [""])
sketch12.MapMode = "FlatFace"
sketch12.AttachmentOffset = App.Placement(App.Vector(0, 0, -5.5), App.Rotation())
sketch12.addGeometry(Part.LineSegment(App.Vector(19.2, 6, 0), App.Vector(21.2, 6, 0)), False)
sketch12.addGeometry(Part.ArcOfCircle(Part.Circle(App.Vector(22.5, 7.5, 0), App.Vector(0, 0, 1), 2), math.radians(-131), math.radians(-49)), False)
sketch12.addGeometry(Part.LineSegment(App.Vector(23.8, 6, 0), App.Vector(25.8, 6, 0)), False)
sketch12.addGeometry(Part.LineSegment(App.Vector(25.8, 6, 0), App.Vector(25.8, 9, 0)), False)
sketch12.addGeometry(Part.LineSegment(App.Vector(25.8, 9, 0), App.Vector(23.8, 9, 0)), False)
sketch12.addGeometry(Part.ArcOfCircle(Part.Circle(App.Vector(22.5, 7.5, 0), App.Vector(0, 0, 1), 2), math.radians(49), math.radians(131)), False)
sketch12.addGeometry(Part.LineSegment(App.Vector(21.2, 9, 0), App.Vector(19.2, 9, 0)), False)
sketch12.addGeometry(Part.LineSegment(App.Vector(19.2, 9, 0), App.Vector(19.2, 6, 0)), False)
sketch12.addConstraint(Sketcher.Constraint("Coincident", 0, 2, 1, 1))
sketch12.addConstraint(Sketcher.Constraint("Coincident", 1, 2, 2, 1))
sketch12.addConstraint(Sketcher.Constraint("Coincident", 2, 2, 3, 1))
sketch12.addConstraint(Sketcher.Constraint("Coincident", 3, 2, 4, 1))
sketch12.addConstraint(Sketcher.Constraint("Coincident", 4, 2, 5, 1))
sketch12.addConstraint(Sketcher.Constraint("Coincident", 5, 2, 6, 1))
sketch12.addConstraint(Sketcher.Constraint("Coincident", 6, 2, 7, 1))
sketch12.addConstraint(Sketcher.Constraint("Coincident", 7, 2, 0, 1))
sketch12.addConstraint(Sketcher.Constraint("Horizontal", 0))
sketch12.addConstraint(Sketcher.Constraint("Horizontal", 2))
sketch12.addConstraint(Sketcher.Constraint("Vertical", 3))
sketch12.addConstraint(Sketcher.Constraint("Horizontal", 4))
sketch12.addConstraint(Sketcher.Constraint("Horizontal", 6))
sketch12.addConstraint(Sketcher.Constraint("Vertical", 7))
sketch12.addConstraint(Sketcher.Constraint("Coincident", 5, 3, 1, 3))
sketch12.addConstraint(Sketcher.Constraint("Equal", 1, 5))
sketch12.addConstraint(Sketcher.Constraint("Horizontal", 0, 2, 1, 2))
sketch12.addConstraint(Sketcher.Constraint("Horizontal", 4, 2, 5, 2))
sketch12.addConstraint(Sketcher.Constraint("Vertical", 1, 2, 4, 2))
sketch12.addConstraint(Sketcher.Constraint("Equal", 0, 2))
sketch12.addConstraint(Sketcher.Constraint("Radius", 1, Q("2 mm")))
sketch12.addConstraint(Sketcher.Constraint("DistanceY", 3, 1, 3, 2, Q("3 mm")))
sketch12.addConstraint(Sketcher.Constraint("DistanceY", -1, 1, 0, 2, Q("6 mm")))
sketch12.addConstraint(Sketcher.Constraint("DistanceX", -1, 1, 1, 3, Q("22.5 mm")))
sketch12.addConstraint(Sketcher.Constraint("DistanceX", -1, 1, 2, 2, Q("25.75 mm")))
pocket8 = doc.addObject("PartDesign::Pocket", "Pocket007")
body.addObject(pocket8)
pocket8.Profile = sketch12
pocket8.Type = "UpToFirst"

# Sketch on XZ plane
sketch13 = doc.addObject("Sketcher::SketchObject", "Sketch012")
body.addObject(sketch13)
sketch13.AttachmentSupport = (doc.XZ_Plane, [""])
sketch13.MapMode = "FlatFace"
sketch13.AttachmentOffset = App.Placement(App.Vector(0, 0, -2), App.Rotation())
sketch13.addGeometry(Part.LineSegment(App.Vector(-19.2, -1.5, 0), App.Vector(-21.2, -1.5, 0)), False)
sketch13.addGeometry(Part.ArcOfCircle(Part.Circle(App.Vector(-22.5, 0, 0), App.Vector(0, 0, 1), 2), math.radians(-131), math.radians(-49)), False)
sketch13.addGeometry(Part.LineSegment(App.Vector(-23.8, -1.5, 0), App.Vector(-25.8, -1.5, 0)), False)
sketch13.addGeometry(Part.LineSegment(App.Vector(-25.8, -1.5, 0), App.Vector(-25.8, 1.5, 0)), False)
sketch13.addGeometry(Part.LineSegment(App.Vector(-25.8, 1.5, 0), App.Vector(-23.8, 1.5, 0)), False)
sketch13.addGeometry(Part.ArcOfCircle(Part.Circle(App.Vector(-22.5, 0, 0), App.Vector(0, 0, 1), 2), math.radians(49), math.radians(131)), False)
sketch13.addGeometry(Part.LineSegment(App.Vector(-21.2, 1.5, 0), App.Vector(-19.2, 1.5, 0)), False)
sketch13.addGeometry(Part.LineSegment(App.Vector(-19.2, 1.5, 0), App.Vector(-19.2, -1.5, 0)), False)
sketch13.addConstraint(Sketcher.Constraint("Coincident", 0, 2, 1, 2))
sketch13.addConstraint(Sketcher.Constraint("Coincident", 1, 1, 2, 1))
sketch13.addConstraint(Sketcher.Constraint("Coincident", 2, 2, 3, 1))
sketch13.addConstraint(Sketcher.Constraint("Coincident", 3, 2, 4, 1))
sketch13.addConstraint(Sketcher.Constraint("Coincident", 4, 2, 5, 2))
sketch13.addConstraint(Sketcher.Constraint("Coincident", 5, 1, 6, 1))
sketch13.addConstraint(Sketcher.Constraint("Coincident", 6, 2, 7, 1))
sketch13.addConstraint(Sketcher.Constraint("Coincident", 7, 2, 0, 1))
sketch13.addConstraint(Sketcher.Constraint("Horizontal", 0))
sketch13.addConstraint(Sketcher.Constraint("Horizontal", 2))
sketch13.addConstraint(Sketcher.Constraint("Vertical", 3))
sketch13.addConstraint(Sketcher.Constraint("Horizontal", 4))
sketch13.addConstraint(Sketcher.Constraint("Horizontal", 6))
sketch13.addConstraint(Sketcher.Constraint("Vertical", 7))
sketch13.addConstraint(Sketcher.Constraint("Coincident", 5, 3, 1, 3))
sketch13.addConstraint(Sketcher.Constraint("Equal", 1, 5))
sketch13.addConstraint(Sketcher.Constraint("Symmetric", 1, 1, 4, 2, -1))
sketch13.addConstraint(Sketcher.Constraint("Horizontal", 0, 2, 1, 1))
sketch13.addConstraint(Sketcher.Constraint("Horizontal", 4, 2, 5, 1))
sketch13.addConstraint(Sketcher.Constraint("Equal", 0, 2))
sketch13.addConstraint(Sketcher.Constraint("Radius", 1, Q("2 mm")))
sketch13.addConstraint(Sketcher.Constraint("DistanceY", 3, 1, 3, 2, Q("3 mm")))
sketch13.addConstraint(Sketcher.Constraint("DistanceX", 1, 3, -1, 1, Q("22.5 mm")))
sketch13.addConstraint(Sketcher.Constraint("DistanceX", 2, 2, -1, 1, Q("25.75 mm")))
pocket9 = doc.addObject("PartDesign::Pocket", "Pocket008")
body.addObject(pocket9)
pocket9.Profile = sketch13
pocket9.Type = "UpToFirst"
pocket9.Reversed = True

# Sketch on XZ plane
sketch14 = doc.addObject("Sketcher::SketchObject", "Sketch013")
body.addObject(sketch14)
sketch14.AttachmentSupport = (doc.XZ_Plane, [""])
sketch14.MapMode = "FlatFace"
sketch14.AttachmentOffset = App.Placement(App.Vector(0, 0, -2), App.Rotation())
sketch14.addGeometry(Part.LineSegment(App.Vector(-8.8, -1.5, 0), App.Vector(-10.8, -1.5, 0)), False)
sketch14.addGeometry(Part.LineSegment(App.Vector(-10.8, -1.5, 0), App.Vector(-10.8, 1.5, 0)), False)
sketch14.addGeometry(Part.LineSegment(App.Vector(-10.8, 1.5, 0), App.Vector(-8.8, 1.5, 0)), False)
sketch14.addGeometry(Part.ArcOfCircle(Part.Circle(App.Vector(-7.5, 0, 0), App.Vector(0, 0, 1), 2), math.radians(49), math.radians(131)), False)
sketch14.addGeometry(Part.LineSegment(App.Vector(-6.2, 1.5, 0), App.Vector(-4.2, 1.5, 0)), False)
sketch14.addGeometry(Part.LineSegment(App.Vector(-4.2, 1.5, 0), App.Vector(-4.2, -1.5, 0)), False)
sketch14.addGeometry(Part.LineSegment(App.Vector(-4.2, -1.5, 0), App.Vector(-6.2, -1.5, 0)), False)
sketch14.addGeometry(Part.ArcOfCircle(Part.Circle(App.Vector(-7.5, 0, 0), App.Vector(0, 0, 1), 2), math.radians(-131), math.radians(-49)), False)
sketch14.addConstraint(Sketcher.Constraint("Coincident", 0, 2, 1, 1))
sketch14.addConstraint(Sketcher.Constraint("Coincident", 1, 2, 2, 1))
sketch14.addConstraint(Sketcher.Constraint("Coincident", 2, 2, 3, 2))
sketch14.addConstraint(Sketcher.Constraint("Coincident", 3, 1, 4, 1))
sketch14.addConstraint(Sketcher.Constraint("Coincident", 4, 2, 5, 1))
sketch14.addConstraint(Sketcher.Constraint("Coincident", 5, 2, 6, 1))
sketch14.addConstraint(Sketcher.Constraint("Coincident", 6, 2, 7, 2))
sketch14.addConstraint(Sketcher.Constraint("Coincident", 7, 1, 0, 1))
sketch14.addConstraint(Sketcher.Constraint("Horizontal", 0))
sketch14.addConstraint(Sketcher.Constraint("Vertical", 1))
sketch14.addConstraint(Sketcher.Constraint("Horizontal", 2))
sketch14.addConstraint(Sketcher.Constraint("Horizontal", 4))
sketch14.addConstraint(Sketcher.Constraint("Vertical", 5))
sketch14.addConstraint(Sketcher.Constraint("Horizontal", 6))
sketch14.addConstraint(Sketcher.Constraint("Coincident", 7, 3, 3, 3))
sketch14.addConstraint(Sketcher.Constraint("Equal", 3, 7))
sketch14.addConstraint(Sketcher.Constraint("Symmetric", 3, 1, 6, 2, -1))
sketch14.addConstraint(Sketcher.Constraint("Horizontal", 2, 2, 3, 1))
sketch14.addConstraint(Sketcher.Constraint("Horizontal", 0, 2, 5, 2))
sketch14.addConstraint(Sketcher.Constraint("Equal", 2, 4))
sketch14.addConstraint(Sketcher.Constraint("Radius", 3, Q("2 mm")))
sketch14.addConstraint(Sketcher.Constraint("DistanceY", 1, 1, 1, 2, Q("3 mm")))
sketch14.addConstraint(Sketcher.Constraint("DistanceX", 3, 3, -1, 1, Q("7.5 mm")))
sketch14.addConstraint(Sketcher.Constraint("DistanceX", 1, 2, 4, 2, Q("6.5 mm")))
pocket10 = doc.addObject("PartDesign::Pocket", "Pocket009")
body.addObject(pocket10)
pocket10.Profile = sketch14
pocket10.Type = "UpToFirst"
pocket10.Reversed = True

# Sketch on XZ plane
sketch15 = doc.addObject("Sketcher::SketchObject", "Sketch014")
body.addObject(sketch15)
sketch15.AttachmentSupport = (doc.XZ_Plane, [""])
sketch15.MapMode = "FlatFace"
sketch15.AttachmentOffset = App.Placement(App.Vector(0, 0, -2), App.Rotation())
sketch15.addGeometry(Part.LineSegment(App.Vector(4.2, 1.5, 0), App.Vector(6.2, 1.5, 0)), False)
sketch15.addGeometry(Part.ArcOfCircle(Part.Circle(App.Vector(7.5, 0, 0), App.Vector(0, 0, 1), 2), math.radians(49), math.radians(131)), False)
sketch15.addGeometry(Part.LineSegment(App.Vector(8.8, 1.5, 0), App.Vector(10.8, 1.5, 0)), False)
sketch15.addGeometry(Part.LineSegment(App.Vector(10.8, 1.5, 0), App.Vector(10.8, -1.5, 0)), False)
sketch15.addGeometry(Part.LineSegment(App.Vector(10.8, -1.5, 0), App.Vector(8.8, -1.5, 0)), False)
sketch15.addGeometry(Part.ArcOfCircle(Part.Circle(App.Vector(7.5, 0, 0), App.Vector(0, 0, 1), 2), math.radians(-131), math.radians(-49)), False)
sketch15.addGeometry(Part.LineSegment(App.Vector(6.2, -1.5, 0), App.Vector(4.2, -1.5, 0)), False)
sketch15.addGeometry(Part.LineSegment(App.Vector(4.2, -1.5, 0), App.Vector(4.2, 1.5, 0)), False)
sketch15.addConstraint(Sketcher.Constraint("Coincident", 0, 2, 1, 2))
sketch15.addConstraint(Sketcher.Constraint("Coincident", 1, 1, 2, 1))
sketch15.addConstraint(Sketcher.Constraint("Coincident", 2, 2, 3, 1))
sketch15.addConstraint(Sketcher.Constraint("Coincident", 3, 2, 4, 1))
sketch15.addConstraint(Sketcher.Constraint("Coincident", 4, 2, 5, 2))
sketch15.addConstraint(Sketcher.Constraint("Coincident", 5, 1, 6, 1))
sketch15.addConstraint(Sketcher.Constraint("Coincident", 6, 2, 7, 1))
sketch15.addConstraint(Sketcher.Constraint("Coincident", 7, 2, 0, 1))
sketch15.addConstraint(Sketcher.Constraint("Horizontal", 0))
sketch15.addConstraint(Sketcher.Constraint("Horizontal", 2))
sketch15.addConstraint(Sketcher.Constraint("Vertical", 3))
sketch15.addConstraint(Sketcher.Constraint("Horizontal", 4))
sketch15.addConstraint(Sketcher.Constraint("Horizontal", 6))
sketch15.addConstraint(Sketcher.Constraint("Vertical", 7))
sketch15.addConstraint(Sketcher.Constraint("Coincident", 5, 3, 1, 3))
sketch15.addConstraint(Sketcher.Constraint("Equal", 1, 5))
sketch15.addConstraint(Sketcher.Constraint("Symmetric", 1, 1, 4, 2, -1))
sketch15.addConstraint(Sketcher.Constraint("Horizontal", 0, 2, 1, 1))
sketch15.addConstraint(Sketcher.Constraint("Horizontal", 4, 2, 5, 1))
sketch15.addConstraint(Sketcher.Constraint("Equal", 0, 2))
sketch15.addConstraint(Sketcher.Constraint("Radius", 1, Q("2 mm")))
sketch15.addConstraint(Sketcher.Constraint("DistanceY", 3, 2, 3, 1, Q("3 mm")))
sketch15.addConstraint(Sketcher.Constraint("DistanceX", -1, 1, 1, 3, Q("7.5 mm")))
sketch15.addConstraint(Sketcher.Constraint("DistanceX", -1, 1, 2, 2, Q("10.75 mm")))
pocket11 = doc.addObject("PartDesign::Pocket", "Pocket010")
body.addObject(pocket11)
pocket11.Profile = sketch15
pocket11.Type = "UpToFirst"
pocket11.Reversed = True

# Sketch on XZ plane
sketch16 = doc.addObject("Sketcher::SketchObject", "Sketch015")
body.addObject(sketch16)
sketch16.AttachmentSupport = (doc.XZ_Plane, [""])
sketch16.MapMode = "FlatFace"
sketch16.AttachmentOffset = App.Placement(App.Vector(0, 0, -2), App.Rotation())
sketch16.addGeometry(Part.LineSegment(App.Vector(19.2, 1.5, 0), App.Vector(21.2, 1.5, 0)), False)
sketch16.addGeometry(Part.ArcOfCircle(Part.Circle(App.Vector(22.5, 0, 0), App.Vector(0, 0, 1), 2), math.radians(49), math.radians(131)), False)
sketch16.addGeometry(Part.LineSegment(App.Vector(23.8, 1.5, 0), App.Vector(25.8, 1.5, 0)), False)
sketch16.addGeometry(Part.LineSegment(App.Vector(25.8, 1.5, 0), App.Vector(25.8, -1.5, 0)), False)
sketch16.addGeometry(Part.LineSegment(App.Vector(25.8, -1.5, 0), App.Vector(23.8, -1.5, 0)), False)
sketch16.addGeometry(Part.ArcOfCircle(Part.Circle(App.Vector(22.5, 0, 0), App.Vector(0, 0, 1), 2), math.radians(-131), math.radians(-49)), False)
sketch16.addGeometry(Part.LineSegment(App.Vector(21.2, -1.5, 0), App.Vector(19.2, -1.5, 0)), False)
sketch16.addGeometry(Part.LineSegment(App.Vector(19.2, -1.5, 0), App.Vector(19.2, 1.5, 0)), False)
sketch16.addConstraint(Sketcher.Constraint("Coincident", 0, 2, 1, 2))
sketch16.addConstraint(Sketcher.Constraint("Coincident", 1, 1, 2, 1))
sketch16.addConstraint(Sketcher.Constraint("Coincident", 2, 2, 3, 1))
sketch16.addConstraint(Sketcher.Constraint("Coincident", 3, 2, 4, 1))
sketch16.addConstraint(Sketcher.Constraint("Coincident", 4, 2, 5, 2))
sketch16.addConstraint(Sketcher.Constraint("Coincident", 5, 1, 6, 1))
sketch16.addConstraint(Sketcher.Constraint("Coincident", 6, 2, 7, 1))
sketch16.addConstraint(Sketcher.Constraint("Coincident", 7, 2, 0, 1))
sketch16.addConstraint(Sketcher.Constraint("Horizontal", 0))
sketch16.addConstraint(Sketcher.Constraint("Horizontal", 2))
sketch16.addConstraint(Sketcher.Constraint("Vertical", 3))
sketch16.addConstraint(Sketcher.Constraint("Horizontal", 4))
sketch16.addConstraint(Sketcher.Constraint("Horizontal", 6))
sketch16.addConstraint(Sketcher.Constraint("Vertical", 7))
sketch16.addConstraint(Sketcher.Constraint("Coincident", 5, 3, 1, 3))
sketch16.addConstraint(Sketcher.Constraint("Equal", 1, 5))
sketch16.addConstraint(Sketcher.Constraint("Symmetric", 1, 1, 4, 2, -1))
sketch16.addConstraint(Sketcher.Constraint("Horizontal", 0, 2, 1, 1))
sketch16.addConstraint(Sketcher.Constraint("Horizontal", 4, 2, 5, 1))
sketch16.addConstraint(Sketcher.Constraint("Equal", 0, 2))
sketch16.addConstraint(Sketcher.Constraint("Radius", 1, Q("2 mm")))
sketch16.addConstraint(Sketcher.Constraint("DistanceY", 3, 2, 3, 1, Q("3 mm")))
sketch16.addConstraint(Sketcher.Constraint("DistanceX", -1, 1, 1, 3, Q("22.5 mm")))
sketch16.addConstraint(Sketcher.Constraint("DistanceX", -1, 1, 2, 2, Q("25.75 mm")))
pocket12 = doc.addObject("PartDesign::Pocket", "Pocket011")
body.addObject(pocket12)
pocket12.Profile = sketch16
pocket12.Type = "UpToFirst"
pocket12.Reversed = True
doc.recompute()

fillet = doc.addObject("PartDesign::Fillet", "Fillet")
body.addObject(fillet)
fillet.Base = (pocket12, edges_at(pocket12, [
    (32.5, 5.55, 0),
    (32.5, 9.45, 0),
    (32.5, 7.5, -1.95),
    (32.5, 7.5, 1.95),
]))
fillet.Radius = 0.1
doc.recompute()

fillet2 = doc.addObject("PartDesign::Fillet", "Fillet001")
body.addObject(fillet2)
fillet2.Base = (fillet, edges_at(fillet, [
    (-30, 3, 7.5),
    (-30, 0, 0),
    (-30, 7.5, -7.5),
    (-30, 15, 0),
    (-30, 12, 7.5),
    (-30, 9, 2.775),
    (-30, 7.5, -1.95),
    (-30, 6, 2.775),
    (0, 0, -7.5),
    (0, 0, 7.5),
    (0, 15, -7.5),
    (30, 0, 0),
    (30, 7.5, -7.5),
    (30, 15, 0),
    (29, 15, 7.5),
    (30, 7.5, 7.5),
]))
fillet2.Radius = 0.2

doc.recompute()
